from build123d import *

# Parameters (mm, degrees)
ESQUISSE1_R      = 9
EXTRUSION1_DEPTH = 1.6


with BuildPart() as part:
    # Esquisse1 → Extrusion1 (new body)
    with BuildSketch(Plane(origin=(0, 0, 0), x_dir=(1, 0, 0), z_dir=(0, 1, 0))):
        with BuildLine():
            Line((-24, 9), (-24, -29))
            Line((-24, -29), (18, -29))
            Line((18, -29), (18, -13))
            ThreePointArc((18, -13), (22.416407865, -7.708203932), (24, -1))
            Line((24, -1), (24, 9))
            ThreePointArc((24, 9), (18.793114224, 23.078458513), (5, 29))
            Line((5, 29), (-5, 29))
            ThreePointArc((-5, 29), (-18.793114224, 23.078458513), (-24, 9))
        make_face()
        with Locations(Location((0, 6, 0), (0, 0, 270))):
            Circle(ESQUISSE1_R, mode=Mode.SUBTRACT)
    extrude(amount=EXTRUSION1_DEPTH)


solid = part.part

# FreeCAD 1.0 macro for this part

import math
import FreeCAD as App
import Part
import Sketcher

V = App.Vector

doc = App.newDocument("Part")
params = doc.addObject("Spreadsheet::Sheet", "Params")
for row, (alias, value) in enumerate([
    ("sketch1_diameter", "18 mm"),
    ("sketch1_radius", "15 mm"),
    ("sketch1_width", "42 mm"),
    ("sketch1_width2", "10 mm"),
    ("sketch1_height", "38 mm"),
    ("pad1_length", "1.6 mm"),
], start=1):
    params.set(f"A{row}", alias)
    params.set(f"B{row}", "=" + value)
    params.setAlias(f"B{row}", alias)

body = doc.addObject("PartDesign::Body", "Body")

sketch1 = body.newObject("Sketcher::SketchObject", "Sketch")
sketch1.AttachmentSupport = (doc.getObject("XZ_Plane"), [""])
sketch1.MapMode = "FlatFace"
sketch1.addGeometry([
    Part.LineSegment(V(-24, -9, 0), V(-24, 29, 0)),
    Part.LineSegment(V(-24, 29, 0), V(18, 29, 0)),
    Part.LineSegment(V(18, 29, 0), V(18, 13, 0)),
    Part.ArcOfCircle(Part.Circle(V(9, 1, 0), V(0, 0, 1), 15), math.radians(0), math.radians(53)),
    Part.LineSegment(V(24, 1, 0), V(24, -9, 0)),
    Part.ArcOfCircle(Part.Circle(V(5, -10, 0), V(0, 0, 1), 19), math.radians(-90), math.radians(3)),
    Part.LineSegment(V(5, -29, 0), V(-5, -29, 0)),
    Part.ArcOfCircle(Part.Circle(V(-5, -10, 0), V(0, 0, 1), 19), math.radians(177), math.radians(270)),
    Part.Circle(V(0, -6, 0), V(0, 0, 1), 9),
], False)
sketch1.addConstraint([
    Sketcher.Constraint("Coincident", 0, 2, 1, 1),
    Sketcher.Constraint("Coincident", 1, 2, 2, 1),
    Sketcher.Constraint("Coincident", 2, 2, 3, 2),
    Sketcher.Constraint("Tangent", 3, 1, 4, 1),
    Sketcher.Constraint("Coincident", 4, 2, 5, 2),
    Sketcher.Constraint("Tangent", 5, 1, 6, 1),
    Sketcher.Constraint("Tangent", 6, 2, 7, 2),
    Sketcher.Constraint("Coincident", 7, 1, 0, 1),
    Sketcher.Constraint("Vertical", 0),
    Sketcher.Constraint("Horizontal", 1),
    Sketcher.Constraint("Vertical", 2),
    Sketcher.Constraint("Vertical", 4),
    Sketcher.Constraint("Horizontal", 6),
    Sketcher.Constraint("Equal", 5, 7),
    Sketcher.Constraint("Symmetric", 4, 2, 7, 1, -2),
    Sketcher.Constraint("PointOnObject", 8, 3, -2),
    Sketcher.Constraint("Equal", 6, 4),
    Sketcher.Constraint("Diameter", 8, 18.0),
    Sketcher.Constraint("Radius", 3, 15.0),
    Sketcher.Constraint("DistanceX", 1, 1, 1, 2, 42.0),
    Sketcher.Constraint("DistanceX", 6, 2, 6, 1, 10.0),
    Sketcher.Constraint("DistanceY", 0, 1, 0, 2, 38.0),
    Sketcher.Constraint("DistanceY", 2, 2, 2, 1, 16.0),
    Sketcher.Constraint("DistanceY", -1, 1, 3, 3, 1.0),
    Sketcher.Constraint("DistanceY", 8, 3, -1, 1, 6.0),
    Sketcher.Constraint("DistanceY", 5, 1, -1, 1, 29.0),
])
sketch1.setExpression("Constraints[17]", "Params.sketch1_diameter")
sketch1.setExpression("Constraints[18]", "Params.sketch1_radius")
sketch1.setExpression("Constraints[19]", "Params.sketch1_width")
sketch1.setExpression("Constraints[20]", "Params.sketch1_width2")
sketch1.setExpression("Constraints[21]", "Params.sketch1_height")
pad1 = body.newObject("PartDesign::Pad", "Pad")
pad1.Profile = sketch1
pad1.setExpression("Length", "Params.pad1_length")
pad1.Reversed = True

doc.recompute()
